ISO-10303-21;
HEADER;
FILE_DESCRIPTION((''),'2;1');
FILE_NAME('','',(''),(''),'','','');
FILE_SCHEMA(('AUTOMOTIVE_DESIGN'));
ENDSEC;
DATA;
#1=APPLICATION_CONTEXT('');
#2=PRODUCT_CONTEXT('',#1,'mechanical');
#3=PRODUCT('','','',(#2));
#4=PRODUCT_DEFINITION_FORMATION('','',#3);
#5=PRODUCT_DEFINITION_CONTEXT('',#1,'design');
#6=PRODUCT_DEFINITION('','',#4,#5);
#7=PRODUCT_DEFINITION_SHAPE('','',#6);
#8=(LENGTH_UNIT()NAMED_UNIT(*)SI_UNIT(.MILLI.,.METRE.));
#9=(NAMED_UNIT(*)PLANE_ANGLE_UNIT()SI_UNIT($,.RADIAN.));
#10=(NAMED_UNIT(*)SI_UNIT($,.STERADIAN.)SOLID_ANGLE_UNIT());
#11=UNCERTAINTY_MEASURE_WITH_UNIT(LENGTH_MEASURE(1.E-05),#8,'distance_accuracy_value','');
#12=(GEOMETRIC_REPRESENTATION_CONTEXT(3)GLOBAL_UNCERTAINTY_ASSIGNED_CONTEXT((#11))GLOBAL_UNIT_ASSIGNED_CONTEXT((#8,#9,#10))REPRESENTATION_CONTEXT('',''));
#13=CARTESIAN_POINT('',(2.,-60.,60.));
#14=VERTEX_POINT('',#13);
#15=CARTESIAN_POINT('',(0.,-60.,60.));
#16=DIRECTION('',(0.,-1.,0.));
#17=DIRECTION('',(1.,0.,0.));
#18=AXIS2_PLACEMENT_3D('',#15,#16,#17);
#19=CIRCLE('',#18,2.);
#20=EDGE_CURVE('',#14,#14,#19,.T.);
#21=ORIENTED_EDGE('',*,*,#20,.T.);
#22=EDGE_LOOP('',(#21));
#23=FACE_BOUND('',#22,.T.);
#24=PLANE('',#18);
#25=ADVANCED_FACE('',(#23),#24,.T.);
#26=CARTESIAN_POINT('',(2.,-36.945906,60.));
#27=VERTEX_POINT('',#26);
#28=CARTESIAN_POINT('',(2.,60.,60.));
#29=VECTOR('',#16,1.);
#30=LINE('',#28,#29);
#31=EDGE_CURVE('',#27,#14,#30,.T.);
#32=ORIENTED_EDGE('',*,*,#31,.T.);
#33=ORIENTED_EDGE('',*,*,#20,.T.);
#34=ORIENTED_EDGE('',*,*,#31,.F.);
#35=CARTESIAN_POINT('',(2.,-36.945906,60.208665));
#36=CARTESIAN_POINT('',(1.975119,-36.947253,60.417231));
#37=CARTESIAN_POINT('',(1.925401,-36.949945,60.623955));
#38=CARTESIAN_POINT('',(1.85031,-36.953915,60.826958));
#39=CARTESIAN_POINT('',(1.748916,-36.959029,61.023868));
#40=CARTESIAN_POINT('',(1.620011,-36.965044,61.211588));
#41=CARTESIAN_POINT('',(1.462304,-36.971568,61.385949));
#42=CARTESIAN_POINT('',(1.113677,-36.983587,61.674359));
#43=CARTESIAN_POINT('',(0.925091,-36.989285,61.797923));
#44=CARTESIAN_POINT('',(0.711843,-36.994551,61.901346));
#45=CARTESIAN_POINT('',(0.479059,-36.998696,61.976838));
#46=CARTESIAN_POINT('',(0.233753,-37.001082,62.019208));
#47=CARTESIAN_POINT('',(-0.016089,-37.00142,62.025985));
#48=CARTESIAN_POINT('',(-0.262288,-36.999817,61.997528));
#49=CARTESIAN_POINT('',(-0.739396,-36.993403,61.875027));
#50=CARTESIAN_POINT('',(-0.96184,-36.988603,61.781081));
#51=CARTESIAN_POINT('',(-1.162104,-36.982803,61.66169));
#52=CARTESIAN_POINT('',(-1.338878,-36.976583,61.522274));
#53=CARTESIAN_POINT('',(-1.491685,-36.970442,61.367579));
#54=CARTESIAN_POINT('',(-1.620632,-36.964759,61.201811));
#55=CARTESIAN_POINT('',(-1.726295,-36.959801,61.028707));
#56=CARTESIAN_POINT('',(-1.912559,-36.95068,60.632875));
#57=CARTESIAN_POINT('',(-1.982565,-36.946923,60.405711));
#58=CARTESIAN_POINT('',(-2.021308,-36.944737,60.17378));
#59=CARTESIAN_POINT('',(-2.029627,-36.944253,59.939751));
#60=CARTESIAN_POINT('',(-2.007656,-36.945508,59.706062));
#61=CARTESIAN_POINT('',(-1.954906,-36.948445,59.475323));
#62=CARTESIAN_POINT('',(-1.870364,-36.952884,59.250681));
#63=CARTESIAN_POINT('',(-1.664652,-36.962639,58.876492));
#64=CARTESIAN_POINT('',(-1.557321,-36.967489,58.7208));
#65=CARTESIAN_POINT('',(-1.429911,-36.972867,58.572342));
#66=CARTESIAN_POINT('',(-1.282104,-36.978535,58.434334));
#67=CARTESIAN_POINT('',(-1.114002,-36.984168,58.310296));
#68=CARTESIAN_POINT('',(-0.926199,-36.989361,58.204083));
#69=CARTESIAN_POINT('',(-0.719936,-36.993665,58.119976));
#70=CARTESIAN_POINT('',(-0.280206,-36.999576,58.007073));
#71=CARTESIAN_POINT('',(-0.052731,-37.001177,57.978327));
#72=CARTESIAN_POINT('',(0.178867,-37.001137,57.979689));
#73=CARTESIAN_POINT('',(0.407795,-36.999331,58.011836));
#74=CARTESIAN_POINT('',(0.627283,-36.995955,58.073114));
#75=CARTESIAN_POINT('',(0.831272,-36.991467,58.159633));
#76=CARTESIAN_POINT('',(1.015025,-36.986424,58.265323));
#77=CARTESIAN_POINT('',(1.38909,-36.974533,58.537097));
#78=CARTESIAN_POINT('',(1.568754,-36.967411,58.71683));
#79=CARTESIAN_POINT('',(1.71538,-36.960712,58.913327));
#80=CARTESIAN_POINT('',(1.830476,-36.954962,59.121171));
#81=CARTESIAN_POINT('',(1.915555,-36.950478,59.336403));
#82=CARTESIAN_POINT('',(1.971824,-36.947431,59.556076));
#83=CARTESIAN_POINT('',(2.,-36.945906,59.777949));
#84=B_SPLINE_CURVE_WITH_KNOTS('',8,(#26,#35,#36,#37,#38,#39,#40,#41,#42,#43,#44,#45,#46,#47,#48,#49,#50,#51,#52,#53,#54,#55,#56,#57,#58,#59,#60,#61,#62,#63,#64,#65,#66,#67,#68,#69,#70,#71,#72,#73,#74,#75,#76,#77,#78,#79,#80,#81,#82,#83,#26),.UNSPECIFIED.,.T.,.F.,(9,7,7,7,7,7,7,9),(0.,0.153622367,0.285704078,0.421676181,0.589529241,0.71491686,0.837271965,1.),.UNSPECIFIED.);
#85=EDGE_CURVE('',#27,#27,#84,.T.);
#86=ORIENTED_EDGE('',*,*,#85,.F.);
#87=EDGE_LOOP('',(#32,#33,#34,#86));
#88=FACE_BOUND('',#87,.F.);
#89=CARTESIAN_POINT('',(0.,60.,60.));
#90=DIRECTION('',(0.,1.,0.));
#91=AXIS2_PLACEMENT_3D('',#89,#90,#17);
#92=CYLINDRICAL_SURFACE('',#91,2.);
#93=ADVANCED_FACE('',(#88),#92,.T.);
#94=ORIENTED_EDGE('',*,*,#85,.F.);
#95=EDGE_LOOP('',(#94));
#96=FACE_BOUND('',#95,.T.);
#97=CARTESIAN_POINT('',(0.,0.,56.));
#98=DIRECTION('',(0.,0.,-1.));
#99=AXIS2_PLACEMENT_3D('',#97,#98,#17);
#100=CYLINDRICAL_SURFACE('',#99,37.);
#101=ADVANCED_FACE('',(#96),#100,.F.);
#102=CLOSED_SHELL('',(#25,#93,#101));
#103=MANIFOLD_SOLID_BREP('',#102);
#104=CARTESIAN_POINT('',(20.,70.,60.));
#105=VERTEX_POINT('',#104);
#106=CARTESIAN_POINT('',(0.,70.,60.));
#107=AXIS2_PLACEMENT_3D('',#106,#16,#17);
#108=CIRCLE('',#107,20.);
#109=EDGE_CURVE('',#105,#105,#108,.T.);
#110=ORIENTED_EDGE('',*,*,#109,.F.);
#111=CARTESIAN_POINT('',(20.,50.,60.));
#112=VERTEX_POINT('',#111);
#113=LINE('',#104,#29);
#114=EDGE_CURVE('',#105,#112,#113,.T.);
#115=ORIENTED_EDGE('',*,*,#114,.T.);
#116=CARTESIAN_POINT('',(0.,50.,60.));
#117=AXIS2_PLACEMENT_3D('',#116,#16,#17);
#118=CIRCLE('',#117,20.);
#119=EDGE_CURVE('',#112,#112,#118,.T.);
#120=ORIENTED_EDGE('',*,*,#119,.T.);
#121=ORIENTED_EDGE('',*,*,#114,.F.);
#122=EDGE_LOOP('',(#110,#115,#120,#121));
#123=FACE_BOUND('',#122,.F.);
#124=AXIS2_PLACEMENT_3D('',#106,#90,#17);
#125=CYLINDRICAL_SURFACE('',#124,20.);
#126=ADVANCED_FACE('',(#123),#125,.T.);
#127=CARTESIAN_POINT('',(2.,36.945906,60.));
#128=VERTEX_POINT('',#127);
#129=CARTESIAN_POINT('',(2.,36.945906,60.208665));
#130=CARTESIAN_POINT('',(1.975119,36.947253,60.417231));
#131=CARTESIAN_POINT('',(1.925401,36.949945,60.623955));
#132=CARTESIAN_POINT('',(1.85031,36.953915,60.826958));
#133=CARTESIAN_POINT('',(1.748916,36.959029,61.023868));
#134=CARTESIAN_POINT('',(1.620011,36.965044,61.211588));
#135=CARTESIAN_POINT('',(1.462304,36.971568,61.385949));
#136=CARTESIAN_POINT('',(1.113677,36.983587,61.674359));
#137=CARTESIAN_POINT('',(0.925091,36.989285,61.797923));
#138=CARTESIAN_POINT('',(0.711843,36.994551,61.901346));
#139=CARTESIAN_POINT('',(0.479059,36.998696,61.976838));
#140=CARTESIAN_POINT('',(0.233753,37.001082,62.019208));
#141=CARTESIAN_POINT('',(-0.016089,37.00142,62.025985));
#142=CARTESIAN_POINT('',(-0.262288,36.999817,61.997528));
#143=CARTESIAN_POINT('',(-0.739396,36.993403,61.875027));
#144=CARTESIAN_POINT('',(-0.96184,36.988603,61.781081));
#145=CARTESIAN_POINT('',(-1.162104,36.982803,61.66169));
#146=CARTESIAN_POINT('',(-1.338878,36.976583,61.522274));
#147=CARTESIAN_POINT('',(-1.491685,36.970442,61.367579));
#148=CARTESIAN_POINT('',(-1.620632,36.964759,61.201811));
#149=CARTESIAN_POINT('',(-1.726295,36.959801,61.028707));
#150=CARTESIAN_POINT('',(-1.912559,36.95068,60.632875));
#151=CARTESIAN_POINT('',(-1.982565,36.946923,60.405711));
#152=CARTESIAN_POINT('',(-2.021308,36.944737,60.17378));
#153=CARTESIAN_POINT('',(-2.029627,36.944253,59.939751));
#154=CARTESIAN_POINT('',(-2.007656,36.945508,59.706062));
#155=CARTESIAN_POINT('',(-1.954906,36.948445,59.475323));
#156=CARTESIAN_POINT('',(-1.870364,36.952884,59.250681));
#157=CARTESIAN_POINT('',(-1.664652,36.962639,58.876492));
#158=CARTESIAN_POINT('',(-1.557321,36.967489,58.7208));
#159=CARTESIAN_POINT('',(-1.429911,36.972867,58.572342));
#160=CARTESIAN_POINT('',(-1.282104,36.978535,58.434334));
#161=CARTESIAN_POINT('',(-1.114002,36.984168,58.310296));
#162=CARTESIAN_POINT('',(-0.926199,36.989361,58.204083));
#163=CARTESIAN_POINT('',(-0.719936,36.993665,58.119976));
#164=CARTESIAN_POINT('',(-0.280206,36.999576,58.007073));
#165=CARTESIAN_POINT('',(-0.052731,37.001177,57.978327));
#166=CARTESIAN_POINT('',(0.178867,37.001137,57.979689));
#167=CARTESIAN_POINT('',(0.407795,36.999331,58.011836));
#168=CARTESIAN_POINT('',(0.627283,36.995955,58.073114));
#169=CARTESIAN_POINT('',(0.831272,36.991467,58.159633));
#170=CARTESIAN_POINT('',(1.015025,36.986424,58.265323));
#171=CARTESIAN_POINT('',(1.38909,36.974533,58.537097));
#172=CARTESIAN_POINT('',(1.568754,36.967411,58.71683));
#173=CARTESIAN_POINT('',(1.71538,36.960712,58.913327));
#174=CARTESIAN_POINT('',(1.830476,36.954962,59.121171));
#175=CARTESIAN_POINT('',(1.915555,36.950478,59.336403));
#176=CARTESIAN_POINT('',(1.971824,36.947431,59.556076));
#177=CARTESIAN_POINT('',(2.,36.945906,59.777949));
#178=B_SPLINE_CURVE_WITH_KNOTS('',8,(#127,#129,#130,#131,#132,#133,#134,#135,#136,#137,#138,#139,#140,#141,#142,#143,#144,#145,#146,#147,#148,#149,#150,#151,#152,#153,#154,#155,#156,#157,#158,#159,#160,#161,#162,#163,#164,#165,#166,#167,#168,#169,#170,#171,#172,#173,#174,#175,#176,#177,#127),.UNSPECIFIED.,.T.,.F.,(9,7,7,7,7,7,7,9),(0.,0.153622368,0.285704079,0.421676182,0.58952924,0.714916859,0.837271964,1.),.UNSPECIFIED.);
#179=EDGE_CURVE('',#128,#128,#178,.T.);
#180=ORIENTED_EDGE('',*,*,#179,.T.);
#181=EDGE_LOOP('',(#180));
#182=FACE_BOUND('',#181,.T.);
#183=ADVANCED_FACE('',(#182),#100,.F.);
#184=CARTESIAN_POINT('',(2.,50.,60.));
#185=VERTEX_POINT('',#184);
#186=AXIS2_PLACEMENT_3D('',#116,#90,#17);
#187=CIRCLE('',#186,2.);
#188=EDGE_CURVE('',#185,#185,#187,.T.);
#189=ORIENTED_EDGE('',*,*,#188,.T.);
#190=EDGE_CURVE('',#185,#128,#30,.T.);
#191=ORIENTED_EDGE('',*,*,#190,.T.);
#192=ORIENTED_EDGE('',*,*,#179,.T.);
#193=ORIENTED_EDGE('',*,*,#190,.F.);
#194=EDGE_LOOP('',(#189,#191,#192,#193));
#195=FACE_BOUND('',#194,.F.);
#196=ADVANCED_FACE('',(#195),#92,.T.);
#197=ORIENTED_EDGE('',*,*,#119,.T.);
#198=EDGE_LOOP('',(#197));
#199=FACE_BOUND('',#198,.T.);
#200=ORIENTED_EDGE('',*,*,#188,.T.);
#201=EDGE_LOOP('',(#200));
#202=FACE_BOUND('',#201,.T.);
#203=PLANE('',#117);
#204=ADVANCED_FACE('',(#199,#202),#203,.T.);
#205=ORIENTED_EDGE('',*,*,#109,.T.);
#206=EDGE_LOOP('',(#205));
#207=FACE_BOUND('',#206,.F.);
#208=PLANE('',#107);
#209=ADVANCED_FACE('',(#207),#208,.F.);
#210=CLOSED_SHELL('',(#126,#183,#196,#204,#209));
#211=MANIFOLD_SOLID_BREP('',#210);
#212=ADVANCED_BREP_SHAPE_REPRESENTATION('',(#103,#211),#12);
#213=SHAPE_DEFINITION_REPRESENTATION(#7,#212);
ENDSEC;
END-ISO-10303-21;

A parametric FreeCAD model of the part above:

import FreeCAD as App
import Part
import Sketcher
Q = App.Units.Quantity

doc = App.newDocument("Part")
body = doc.addObject("PartDesign::Body", "Body")

sketch1 = doc.addObject("Sketcher::SketchObject", "Sketch")
body.addObject(sketch1)
sketch1.AttachmentSupport = (doc.XY_Plane, [""])
sketch1.MapMode = "FlatFace"
sketch1.AttachmentOffset = App.Placement(App.Vector(0, 0, 56), App.Rotation())
sketch1.addGeometry(Part.Circle(App.Vector(0, 0, 0), App.Vector(0, 0, 1), 37), False)
sketch1.addConstraint([
    Sketcher.Constraint("Coincident", 0, 3, -1, 1),
    Sketcher.Constraint("Diameter", 0, Q("74 mm")),
])
pad1 = doc.addObject("PartDesign::Pad", "Pad")
body.addObject(pad1)
pad1.Profile = sketch1
pad1.Length = 30
body2 = doc.addObject("PartDesign::Body", "Body001")
body2.AllowCompound = True

sketch2 = doc.addObject("Sketcher::SketchObject", "Sketch001")
body2.addObject(sketch2)
sketch2.AttachmentSupport = (doc.getObject("XZ_Plane001"), [""])
sketch2.MapMode = "FlatFace"
sketch2.AttachmentOffset = App.Placement(App.Vector(0, 0, -60), App.Rotation())
sketch2.addGeometry(Part.Circle(App.Vector(0, 60, 0), App.Vector(0, 0, 1), 2), False)
sketch2.addConstraint([
    Sketcher.Constraint("PointOnObject", 0, 3, -2),
    Sketcher.Constraint("Diameter", 0, Q("4 mm")),
    Sketcher.Constraint("DistanceY", -1, 1, 0, 3, Q("60 mm")),
])
pad2 = doc.addObject("PartDesign::Pad", "Pad001")
body2.addObject(pad2)
pad2.Profile = sketch2
pad2.Length = 120
doc.recompute()

boolean = doc.addObject("PartDesign::Boolean", "Boolean")
body2.addObject(boolean)
boolean.Type = "Cut"
boolean.addObjects([body])
body3 = doc.addObject("PartDesign::Body", "Body002")
body3.AllowCompound = True

sketch3 = doc.addObject("Sketcher::SketchObject", "Sketch002")
body3.addObject(sketch3)
sketch3.AttachmentSupport = (doc.getObject("XZ_Plane002"), [""])
sketch3.MapMode = "FlatFace"
sketch3.AttachmentOffset = App.Placement(App.Vector(0, 0, -70), App.Rotation())
sketch3.addGeometry(Part.Circle(App.Vector(0, 60, 0), App.Vector(0, 0, 1), 20), False)
sketch3.addConstraint([
    Sketcher.Constraint("PointOnObject", 0, 3, -2),
    Sketcher.Constraint("Diameter", 0, Q("40 mm")),
    Sketcher.Constraint("DistanceY", -1, 1, 0, 3, Q("60 mm")),
])
pad3 = doc.addObject("PartDesign::Pad", "Pad002")
body3.addObject(pad3)
pad3.Profile = sketch3
pad3.Length = 20
doc.recompute()

boolean2 = doc.addObject("PartDesign::Boolean", "Boolean001")
body3.addObject(boolean2)
boolean2.Type = "Fuse"
boolean2.addObjects([body2])

doc.recompute()
